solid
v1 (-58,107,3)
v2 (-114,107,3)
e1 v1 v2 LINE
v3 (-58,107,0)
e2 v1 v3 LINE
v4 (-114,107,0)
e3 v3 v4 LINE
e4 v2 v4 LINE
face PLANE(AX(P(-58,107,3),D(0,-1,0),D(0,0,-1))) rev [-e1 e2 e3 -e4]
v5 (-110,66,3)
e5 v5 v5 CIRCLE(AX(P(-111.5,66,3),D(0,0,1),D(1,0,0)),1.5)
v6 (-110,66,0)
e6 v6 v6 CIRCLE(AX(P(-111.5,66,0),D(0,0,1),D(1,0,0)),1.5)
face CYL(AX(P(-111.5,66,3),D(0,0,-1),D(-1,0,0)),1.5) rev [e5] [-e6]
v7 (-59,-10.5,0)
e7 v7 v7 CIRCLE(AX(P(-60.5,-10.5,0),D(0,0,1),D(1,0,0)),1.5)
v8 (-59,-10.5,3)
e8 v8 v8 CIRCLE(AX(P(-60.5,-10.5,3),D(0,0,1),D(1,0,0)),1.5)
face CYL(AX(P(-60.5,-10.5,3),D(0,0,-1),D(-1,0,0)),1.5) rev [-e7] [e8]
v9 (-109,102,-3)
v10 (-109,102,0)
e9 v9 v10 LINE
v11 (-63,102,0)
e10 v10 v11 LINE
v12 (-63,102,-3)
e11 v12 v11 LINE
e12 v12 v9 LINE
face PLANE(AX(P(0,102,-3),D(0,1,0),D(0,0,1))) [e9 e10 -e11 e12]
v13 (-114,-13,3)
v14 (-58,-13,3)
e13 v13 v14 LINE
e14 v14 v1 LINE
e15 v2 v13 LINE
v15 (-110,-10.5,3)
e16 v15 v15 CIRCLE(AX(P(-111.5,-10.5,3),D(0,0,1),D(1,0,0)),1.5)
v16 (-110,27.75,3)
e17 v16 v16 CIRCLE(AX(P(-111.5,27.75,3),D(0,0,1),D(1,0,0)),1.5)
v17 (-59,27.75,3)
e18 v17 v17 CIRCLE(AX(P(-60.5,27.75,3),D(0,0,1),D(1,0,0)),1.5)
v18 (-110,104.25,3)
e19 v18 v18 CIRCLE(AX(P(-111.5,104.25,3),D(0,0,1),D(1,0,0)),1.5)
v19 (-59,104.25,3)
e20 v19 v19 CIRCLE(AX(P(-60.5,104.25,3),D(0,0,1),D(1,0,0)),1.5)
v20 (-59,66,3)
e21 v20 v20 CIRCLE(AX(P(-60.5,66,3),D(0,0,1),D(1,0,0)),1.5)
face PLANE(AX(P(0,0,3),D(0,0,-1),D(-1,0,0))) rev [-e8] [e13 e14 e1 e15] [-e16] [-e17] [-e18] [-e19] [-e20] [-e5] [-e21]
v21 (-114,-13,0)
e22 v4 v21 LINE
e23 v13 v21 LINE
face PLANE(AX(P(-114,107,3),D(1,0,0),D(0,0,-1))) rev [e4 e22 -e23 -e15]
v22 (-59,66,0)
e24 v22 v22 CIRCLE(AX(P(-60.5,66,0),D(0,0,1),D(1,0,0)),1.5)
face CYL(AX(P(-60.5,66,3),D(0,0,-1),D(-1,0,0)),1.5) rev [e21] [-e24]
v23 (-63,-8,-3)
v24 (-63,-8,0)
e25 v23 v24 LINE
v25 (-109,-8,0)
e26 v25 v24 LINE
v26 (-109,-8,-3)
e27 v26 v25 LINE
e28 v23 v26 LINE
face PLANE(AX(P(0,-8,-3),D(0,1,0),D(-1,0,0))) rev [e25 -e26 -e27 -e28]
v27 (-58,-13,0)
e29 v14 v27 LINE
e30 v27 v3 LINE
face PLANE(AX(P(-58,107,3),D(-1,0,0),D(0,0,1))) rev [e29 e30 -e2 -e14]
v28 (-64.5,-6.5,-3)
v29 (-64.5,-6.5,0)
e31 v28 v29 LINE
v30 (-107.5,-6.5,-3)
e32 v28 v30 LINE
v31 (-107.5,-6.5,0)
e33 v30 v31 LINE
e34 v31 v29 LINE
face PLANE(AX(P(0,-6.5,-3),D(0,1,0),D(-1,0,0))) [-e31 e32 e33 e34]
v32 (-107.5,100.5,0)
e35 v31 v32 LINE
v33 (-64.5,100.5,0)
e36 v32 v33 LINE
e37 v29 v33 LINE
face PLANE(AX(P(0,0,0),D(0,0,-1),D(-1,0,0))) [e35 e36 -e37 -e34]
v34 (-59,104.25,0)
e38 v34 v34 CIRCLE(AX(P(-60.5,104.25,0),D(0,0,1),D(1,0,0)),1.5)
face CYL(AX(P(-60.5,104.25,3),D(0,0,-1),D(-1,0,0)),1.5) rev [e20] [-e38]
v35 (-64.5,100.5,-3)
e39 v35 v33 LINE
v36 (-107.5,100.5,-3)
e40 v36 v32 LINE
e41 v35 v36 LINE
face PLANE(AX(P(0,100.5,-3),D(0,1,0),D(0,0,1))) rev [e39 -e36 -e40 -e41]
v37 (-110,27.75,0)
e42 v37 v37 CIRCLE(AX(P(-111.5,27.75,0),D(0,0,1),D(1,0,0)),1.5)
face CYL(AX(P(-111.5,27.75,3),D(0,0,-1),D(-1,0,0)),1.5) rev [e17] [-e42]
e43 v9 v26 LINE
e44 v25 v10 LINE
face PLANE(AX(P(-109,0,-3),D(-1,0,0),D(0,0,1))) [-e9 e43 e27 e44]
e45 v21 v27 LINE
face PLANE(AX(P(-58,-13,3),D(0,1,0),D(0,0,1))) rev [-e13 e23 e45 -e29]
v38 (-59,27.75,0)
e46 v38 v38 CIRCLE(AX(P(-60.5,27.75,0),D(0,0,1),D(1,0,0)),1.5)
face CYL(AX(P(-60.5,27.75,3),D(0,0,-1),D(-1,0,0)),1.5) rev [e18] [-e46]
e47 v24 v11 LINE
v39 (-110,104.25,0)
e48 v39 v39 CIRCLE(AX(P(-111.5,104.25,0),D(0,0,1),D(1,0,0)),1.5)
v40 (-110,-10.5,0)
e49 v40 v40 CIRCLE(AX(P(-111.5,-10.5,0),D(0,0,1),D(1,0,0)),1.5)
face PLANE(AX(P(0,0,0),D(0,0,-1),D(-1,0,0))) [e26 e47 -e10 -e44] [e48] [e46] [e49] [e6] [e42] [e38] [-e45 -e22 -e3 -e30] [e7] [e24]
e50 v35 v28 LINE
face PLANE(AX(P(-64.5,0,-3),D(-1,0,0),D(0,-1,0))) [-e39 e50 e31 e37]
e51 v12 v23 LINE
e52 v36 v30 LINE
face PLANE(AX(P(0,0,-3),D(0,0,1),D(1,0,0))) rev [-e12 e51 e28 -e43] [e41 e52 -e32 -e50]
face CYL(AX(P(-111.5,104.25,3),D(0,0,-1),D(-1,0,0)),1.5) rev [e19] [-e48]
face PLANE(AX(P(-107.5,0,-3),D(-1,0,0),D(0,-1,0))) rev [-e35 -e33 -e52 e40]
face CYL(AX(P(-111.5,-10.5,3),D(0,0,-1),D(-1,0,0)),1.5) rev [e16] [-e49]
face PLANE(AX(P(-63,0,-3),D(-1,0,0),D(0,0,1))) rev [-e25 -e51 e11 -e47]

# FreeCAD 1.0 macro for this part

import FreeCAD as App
import Part
import Sketcher
from FreeCAD import Vector


def add_polygon(sketch, points):
    """Adds a closed chain of lines whose ends are joined by coincident constraints."""
    first, n = sketch.GeometryCount, len(points)
    for a, b in zip(points, points[1:] + points[:1]):
        sketch.addGeometry(Part.LineSegment(App.Vector(*a, 0), App.Vector(*b, 0)), False)
    for i in range(n):
        sketch.addConstraint(Sketcher.Constraint("Coincident", first + i, 2, first + (i + 1) % n, 1))

doc = App.newDocument("Part")
body = doc.addObject("PartDesign::Body", "Body")

# Sketch on XY plane
sketch1 = body.newObject("Sketcher::SketchObject", "Sketch")
sketch1.AttachmentSupport = (doc.getObject("XY_Plane"), [""])
sketch1.MapMode = "FlatFace"
add_polygon(sketch1, [(-114, 107), (-114, -13), (-58, -13), (-58, 107)])  # lines 0-3
sketch1.addGeometry(Part.Circle(Vector(-111.5, -10.5, 0), Vector(0, 0, 1), 1.5), False)  # 4
sketch1.addGeometry(Part.Circle(Vector(-111.5, 27.8, 0), Vector(0, 0, 1), 1.5), False)  # 5
sketch1.addGeometry(Part.Circle(Vector(-60.5, -10.5, 0), Vector(0, 0, 1), 1.5), False)  # 6
sketch1.addGeometry(Part.Circle(Vector(-60.5, 27.8, 0), Vector(0, 0, 1), 1.5), False)  # 7
sketch1.addGeometry(Part.Circle(Vector(-111.5, 66, 0), Vector(0, 0, 1), 1.5), False)  # 8
sketch1.addGeometry(Part.Circle(Vector(-111.5, 104.2, 0), Vector(0, 0, 1), 1.5), False)  # 9
sketch1.addGeometry(Part.Circle(Vector(-60.5, 66, 0), Vector(0, 0, 1), 1.5), False)  # 10
sketch1.addGeometry(Part.Circle(Vector(-60.5, 104.2, 0), Vector(0, 0, 1), 1.5), False)  # 11
sketch1.addConstraint(Sketcher.Constraint("Vertical", 0))
sketch1.addConstraint(Sketcher.Constraint("Horizontal", 1))
sketch1.addConstraint(Sketcher.Constraint("Vertical", 2))
sketch1.addConstraint(Sketcher.Constraint("Horizontal", 3))
sketch1.addConstraint(Sketcher.Constraint("Equal", 4, 5))
sketch1.addConstraint(Sketcher.Constraint("Equal", 5, 6))
sketch1.addConstraint(Sketcher.Constraint("Equal", 6, 7))
sketch1.addConstraint(Sketcher.Constraint("Equal", 7, 8))
sketch1.addConstraint(Sketcher.Constraint("Equal", 8, 9))
sketch1.addConstraint(Sketcher.Constraint("Equal", 9, 10))
sketch1.addConstraint(Sketcher.Constraint("Equal", 10, 11))
sketch1.addConstraint(Sketcher.Constraint("Horizontal", 4, 3, 6, 3))
sketch1.addConstraint(Sketcher.Constraint("Horizontal", 5, 3, 7, 3))
sketch1.addConstraint(Sketcher.Constraint("Horizontal", 8, 3, 10, 3))
sketch1.addConstraint(Sketcher.Constraint("Horizontal", 9, 3, 11, 3))
sketch1.addConstraint(Sketcher.Constraint("Vertical", 4, 3, 5, 3))
sketch1.addConstraint(Sketcher.Constraint("Vertical", 6, 3, 7, 3))
sketch1.addConstraint(Sketcher.Constraint("Vertical", 5, 3, 8, 3))
sketch1.addConstraint(Sketcher.Constraint("Vertical", 8, 3, 9, 3))
sketch1.addConstraint(Sketcher.Constraint("Vertical", 7, 3, 10, 3))
sketch1.addConstraint(Sketcher.Constraint("Vertical", 10, 3, 11, 3))
sketch1.addConstraint(Sketcher.Constraint("Diameter", 4, 3.0))
sketch1.addConstraint(Sketcher.Constraint("DistanceX", 1, 1, 1, 2, 56.0))
sketch1.addConstraint(Sketcher.Constraint("DistanceY", 0, 2, 0, 1, 120.0))
sketch1.addConstraint(Sketcher.Constraint("DistanceY", -1, 1, 8, 3, 66.0))
sketch1.addConstraint(Sketcher.Constraint("DistanceX", 0, 2, -1, 1, 114.0))
sketch1.addConstraint(Sketcher.Constraint("DistanceY", 0, 2, -1, 1, 13.0))
sketch1.addConstraint(Sketcher.Constraint("DistanceX", 4, 3, 6, 3, 51.0))
sketch1.addConstraint(Sketcher.Constraint("DistanceX", 4, 3, -1, 1, 111.5))
sketch1.addConstraint(Sketcher.Constraint("DistanceY", 4, 3, -1, 1, 10.5))
sketch1.addConstraint(Sketcher.Constraint("DistanceY", 5, 3, 9, 3, 76.5))
sketch1.addConstraint(Sketcher.Constraint("DistanceY", -1, 1, 5, 3, 27.75))
pad1 = body.newObject("PartDesign::Pad", "Pad")
pad1.Profile = sketch1
pad1.Length = 3

# Sketch on XY plane
sketch2 = body.newObject("Sketcher::SketchObject", "Sketch001")
sketch2.AttachmentSupport = (doc.getObject("XY_Plane"), [""])
sketch2.MapMode = "FlatFace"
sketch2.AttachmentOffset = App.Placement(Vector(0, 0, 3), App.Rotation())
add_polygon(sketch2, [(-109, 102), (-109, -8), (-63, -8), (-63, 102)])  # lines 0-3
add_polygon(sketch2, [(-64, -6), (-108, -6), (-108, 100), (-64, 100)])  # lines 4-7
sketch2.addConstraint(Sketcher.Constraint("Vertical", 0))
sketch2.addConstraint(Sketcher.Constraint("Horizontal", 1))
sketch2.addConstraint(Sketcher.Constraint("Vertical", 2))
sketch2.addConstraint(Sketcher.Constraint("Horizontal", 3))
sketch2.addConstraint(Sketcher.Constraint("Horizontal", 4))
sketch2.addConstraint(Sketcher.Constraint("Vertical", 5))
sketch2.addConstraint(Sketcher.Constraint("Horizontal", 6))
sketch2.addConstraint(Sketcher.Constraint("Vertical", 7))
sketch2.addConstraint(Sketcher.Constraint("DistanceX", 1, 1, 1, 2, 46.0))
sketch2.addConstraint(Sketcher.Constraint("DistanceX", 4, 2, 4, 1, 43.0))
sketch2.addConstraint(Sketcher.Constraint("DistanceY", 0, 2, 0, 1, 110.0))
sketch2.addConstraint(Sketcher.Constraint("DistanceY", 5, 1, 5, 2, 107.0))
sketch2.addConstraint(Sketcher.Constraint("DistanceX", 0, 2, -1, 1, 109.0))
sketch2.addConstraint(Sketcher.Constraint("DistanceY", 0, 2, -1, 1, 8.0))
sketch2.addConstraint(Sketcher.Constraint("DistanceX", 4, 2, -1, 1, 107.5))
sketch2.addConstraint(Sketcher.Constraint("DistanceY", 4, 2, -1, 1, 6.5))
pad2 = body.newObject("PartDesign::Pad", "Pad001")
pad2.Profile = sketch2
pad2.Length = 6
pad2.Reversed = True

doc.recompute()
